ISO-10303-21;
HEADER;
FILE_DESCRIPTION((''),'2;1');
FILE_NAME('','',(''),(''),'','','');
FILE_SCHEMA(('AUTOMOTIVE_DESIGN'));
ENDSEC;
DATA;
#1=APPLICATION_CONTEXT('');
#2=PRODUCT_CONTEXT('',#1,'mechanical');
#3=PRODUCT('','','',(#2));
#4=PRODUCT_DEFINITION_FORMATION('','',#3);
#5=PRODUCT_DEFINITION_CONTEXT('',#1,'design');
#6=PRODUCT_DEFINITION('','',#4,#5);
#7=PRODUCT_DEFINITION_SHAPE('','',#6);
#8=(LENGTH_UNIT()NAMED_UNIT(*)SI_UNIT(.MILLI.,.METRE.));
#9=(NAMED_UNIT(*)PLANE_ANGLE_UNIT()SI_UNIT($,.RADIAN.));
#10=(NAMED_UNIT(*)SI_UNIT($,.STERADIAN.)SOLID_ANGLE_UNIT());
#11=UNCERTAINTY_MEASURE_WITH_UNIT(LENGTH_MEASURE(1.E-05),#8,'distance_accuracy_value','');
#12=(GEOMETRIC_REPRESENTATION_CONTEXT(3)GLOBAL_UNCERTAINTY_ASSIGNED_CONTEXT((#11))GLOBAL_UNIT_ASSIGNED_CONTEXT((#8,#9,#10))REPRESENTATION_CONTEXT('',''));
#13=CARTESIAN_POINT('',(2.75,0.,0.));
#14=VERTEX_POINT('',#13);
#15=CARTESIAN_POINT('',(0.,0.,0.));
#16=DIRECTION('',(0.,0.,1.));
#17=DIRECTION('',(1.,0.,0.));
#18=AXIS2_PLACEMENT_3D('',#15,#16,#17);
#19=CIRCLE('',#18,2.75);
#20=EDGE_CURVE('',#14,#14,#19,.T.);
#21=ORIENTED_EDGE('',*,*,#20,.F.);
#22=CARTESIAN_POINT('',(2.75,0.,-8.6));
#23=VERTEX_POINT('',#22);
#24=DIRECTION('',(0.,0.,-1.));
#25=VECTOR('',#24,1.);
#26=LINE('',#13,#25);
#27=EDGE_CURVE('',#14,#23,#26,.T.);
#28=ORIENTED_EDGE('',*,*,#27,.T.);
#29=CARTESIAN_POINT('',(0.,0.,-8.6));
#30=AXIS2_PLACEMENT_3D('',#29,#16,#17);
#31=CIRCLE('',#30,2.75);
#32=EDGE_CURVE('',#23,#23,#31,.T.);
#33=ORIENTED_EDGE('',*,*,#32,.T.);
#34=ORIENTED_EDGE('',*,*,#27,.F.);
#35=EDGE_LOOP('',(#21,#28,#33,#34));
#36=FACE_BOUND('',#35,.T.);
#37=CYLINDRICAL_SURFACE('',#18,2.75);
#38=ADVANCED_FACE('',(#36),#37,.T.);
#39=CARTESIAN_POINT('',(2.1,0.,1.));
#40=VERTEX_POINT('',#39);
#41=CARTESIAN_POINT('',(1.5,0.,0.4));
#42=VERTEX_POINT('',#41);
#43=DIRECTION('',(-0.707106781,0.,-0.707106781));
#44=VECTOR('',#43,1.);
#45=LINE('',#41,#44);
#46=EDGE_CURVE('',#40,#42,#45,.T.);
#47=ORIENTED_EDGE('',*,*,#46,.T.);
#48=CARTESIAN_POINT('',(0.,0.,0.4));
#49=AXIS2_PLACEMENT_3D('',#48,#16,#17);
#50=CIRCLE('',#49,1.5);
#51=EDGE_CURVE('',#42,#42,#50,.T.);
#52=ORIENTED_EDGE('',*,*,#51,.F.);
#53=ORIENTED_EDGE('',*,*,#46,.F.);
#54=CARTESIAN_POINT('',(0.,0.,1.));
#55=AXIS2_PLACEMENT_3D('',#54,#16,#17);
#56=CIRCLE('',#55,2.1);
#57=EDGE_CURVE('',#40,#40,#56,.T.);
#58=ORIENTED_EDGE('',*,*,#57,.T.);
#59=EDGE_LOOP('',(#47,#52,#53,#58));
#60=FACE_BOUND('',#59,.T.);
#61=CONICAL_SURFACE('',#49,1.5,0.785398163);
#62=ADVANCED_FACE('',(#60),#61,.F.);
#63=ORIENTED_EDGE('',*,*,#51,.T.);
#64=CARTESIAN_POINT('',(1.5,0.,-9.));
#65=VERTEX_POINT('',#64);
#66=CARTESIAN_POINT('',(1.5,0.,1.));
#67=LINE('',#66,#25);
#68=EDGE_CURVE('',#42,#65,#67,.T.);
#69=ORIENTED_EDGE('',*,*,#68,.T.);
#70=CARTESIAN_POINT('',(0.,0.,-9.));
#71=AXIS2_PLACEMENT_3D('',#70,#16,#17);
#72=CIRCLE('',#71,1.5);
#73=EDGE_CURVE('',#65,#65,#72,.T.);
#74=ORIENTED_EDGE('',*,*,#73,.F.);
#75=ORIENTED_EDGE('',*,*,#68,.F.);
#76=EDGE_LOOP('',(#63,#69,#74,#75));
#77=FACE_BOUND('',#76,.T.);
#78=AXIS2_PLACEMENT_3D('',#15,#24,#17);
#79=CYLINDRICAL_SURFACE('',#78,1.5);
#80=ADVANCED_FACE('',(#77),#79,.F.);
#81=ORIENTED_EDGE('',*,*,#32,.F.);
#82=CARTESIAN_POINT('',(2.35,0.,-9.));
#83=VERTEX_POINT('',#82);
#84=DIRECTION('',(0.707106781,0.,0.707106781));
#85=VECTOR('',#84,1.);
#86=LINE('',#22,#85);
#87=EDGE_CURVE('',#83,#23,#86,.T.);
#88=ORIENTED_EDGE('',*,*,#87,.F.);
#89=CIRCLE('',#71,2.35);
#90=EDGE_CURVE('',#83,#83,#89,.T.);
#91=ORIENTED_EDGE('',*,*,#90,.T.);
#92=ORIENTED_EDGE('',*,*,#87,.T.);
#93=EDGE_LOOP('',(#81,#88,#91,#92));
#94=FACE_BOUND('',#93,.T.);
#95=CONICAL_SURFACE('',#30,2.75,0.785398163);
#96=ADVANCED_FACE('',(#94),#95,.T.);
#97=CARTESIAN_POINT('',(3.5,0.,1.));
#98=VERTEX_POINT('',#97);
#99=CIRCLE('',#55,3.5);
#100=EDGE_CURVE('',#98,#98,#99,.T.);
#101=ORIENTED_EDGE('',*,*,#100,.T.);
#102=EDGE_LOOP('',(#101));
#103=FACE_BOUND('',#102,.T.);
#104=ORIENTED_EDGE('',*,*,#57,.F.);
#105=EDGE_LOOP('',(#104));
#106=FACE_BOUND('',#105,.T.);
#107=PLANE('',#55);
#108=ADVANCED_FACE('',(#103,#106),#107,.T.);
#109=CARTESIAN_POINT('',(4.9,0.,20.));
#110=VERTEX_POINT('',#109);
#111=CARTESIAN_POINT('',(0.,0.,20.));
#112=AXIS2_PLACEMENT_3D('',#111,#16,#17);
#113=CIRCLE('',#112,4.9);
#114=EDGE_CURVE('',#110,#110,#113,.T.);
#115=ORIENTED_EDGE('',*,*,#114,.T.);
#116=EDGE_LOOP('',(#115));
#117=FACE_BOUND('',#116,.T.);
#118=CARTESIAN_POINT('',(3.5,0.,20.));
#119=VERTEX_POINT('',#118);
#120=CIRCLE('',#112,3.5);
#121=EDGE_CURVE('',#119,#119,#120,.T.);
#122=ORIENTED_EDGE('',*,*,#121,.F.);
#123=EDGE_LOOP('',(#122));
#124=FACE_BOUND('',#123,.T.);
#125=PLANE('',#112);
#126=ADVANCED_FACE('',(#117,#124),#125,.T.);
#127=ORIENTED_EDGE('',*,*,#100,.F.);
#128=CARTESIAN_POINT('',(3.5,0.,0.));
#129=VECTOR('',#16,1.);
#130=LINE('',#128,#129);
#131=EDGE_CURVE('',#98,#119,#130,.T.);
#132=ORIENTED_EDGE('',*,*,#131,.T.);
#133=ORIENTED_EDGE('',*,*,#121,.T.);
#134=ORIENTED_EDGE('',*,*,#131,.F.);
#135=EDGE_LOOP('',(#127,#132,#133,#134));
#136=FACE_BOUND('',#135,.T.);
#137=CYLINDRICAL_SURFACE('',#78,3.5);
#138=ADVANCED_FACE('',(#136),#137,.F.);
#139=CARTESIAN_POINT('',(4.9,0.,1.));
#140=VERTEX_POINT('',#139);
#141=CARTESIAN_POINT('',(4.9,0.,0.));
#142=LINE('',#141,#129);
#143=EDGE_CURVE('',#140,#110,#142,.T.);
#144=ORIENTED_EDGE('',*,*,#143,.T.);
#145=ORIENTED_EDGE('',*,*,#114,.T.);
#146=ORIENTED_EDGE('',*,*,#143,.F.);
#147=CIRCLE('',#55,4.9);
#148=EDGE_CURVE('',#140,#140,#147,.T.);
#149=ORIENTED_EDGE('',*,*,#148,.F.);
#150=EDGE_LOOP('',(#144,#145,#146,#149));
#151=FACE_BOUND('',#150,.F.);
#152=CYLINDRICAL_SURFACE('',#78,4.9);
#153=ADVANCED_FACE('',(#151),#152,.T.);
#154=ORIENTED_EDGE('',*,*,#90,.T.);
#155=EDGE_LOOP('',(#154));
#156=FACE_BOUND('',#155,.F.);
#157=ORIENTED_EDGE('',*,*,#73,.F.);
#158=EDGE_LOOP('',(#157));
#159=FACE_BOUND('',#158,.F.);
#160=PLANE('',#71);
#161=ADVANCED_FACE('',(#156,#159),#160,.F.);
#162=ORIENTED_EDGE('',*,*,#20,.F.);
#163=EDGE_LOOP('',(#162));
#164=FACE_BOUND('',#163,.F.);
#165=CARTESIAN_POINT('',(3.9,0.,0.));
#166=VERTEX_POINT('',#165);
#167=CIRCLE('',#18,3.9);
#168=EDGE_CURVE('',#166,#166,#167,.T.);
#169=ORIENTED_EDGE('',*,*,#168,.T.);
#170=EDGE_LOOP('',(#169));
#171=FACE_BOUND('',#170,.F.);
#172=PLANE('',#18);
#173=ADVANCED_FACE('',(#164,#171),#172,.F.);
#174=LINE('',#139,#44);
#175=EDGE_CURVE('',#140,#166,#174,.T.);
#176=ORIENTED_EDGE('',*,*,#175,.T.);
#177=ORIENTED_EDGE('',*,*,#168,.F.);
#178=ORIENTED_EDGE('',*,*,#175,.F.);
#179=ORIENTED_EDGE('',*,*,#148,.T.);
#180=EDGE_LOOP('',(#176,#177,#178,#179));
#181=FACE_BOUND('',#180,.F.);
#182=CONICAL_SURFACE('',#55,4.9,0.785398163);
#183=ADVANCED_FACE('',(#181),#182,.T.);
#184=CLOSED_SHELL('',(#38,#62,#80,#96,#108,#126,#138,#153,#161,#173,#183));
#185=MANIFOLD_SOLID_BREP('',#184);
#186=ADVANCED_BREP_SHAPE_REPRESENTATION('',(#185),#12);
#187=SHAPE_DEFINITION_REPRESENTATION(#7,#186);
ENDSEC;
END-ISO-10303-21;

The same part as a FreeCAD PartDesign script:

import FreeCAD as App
import Part
import Sketcher

V = App.Vector
Q = App.Units.Quantity


def edges_at(feature, points):
    """Names of the edges that pass closest to the given points."""
    edges = feature.Shape.Edges
    near = lambda p: min(range(len(edges)), key=lambda i: edges[i].distToShape(Part.Vertex(*p))[0])
    return sorted({f"Edge{near(p) + 1}" for p in points})

doc = App.newDocument("Part")
body = doc.addObject("PartDesign::Body", "Body")

# Sketch on XY plane
sketch1 = body.newObject("Sketcher::SketchObject", "Sketch")
sketch1.AttachmentSupport = (doc.getObject("XY_Plane"), [""])
sketch1.MapMode = "FlatFace"
sketch1.addGeometry([
    Part.Circle(V(0, 0, 0), V(0, 0, 1), 2.8),
    Part.Circle(V(0, 0, 0), V(0, 0, 1), 1.5),
], False)
sketch1.addConstraint([
    Sketcher.Constraint("Coincident", 0, 3, -1, 1),
    Sketcher.Constraint("Coincident", 1, 3, -1, 1),
    Sketcher.Constraint("Diameter", 1, Q("3 mm")),
    Sketcher.Constraint("Diameter", 0, Q("5.5 mm")),
])
pad1 = body.newObject("PartDesign::Pad", "Pad")
pad1.Profile = sketch1
pad1.Length = 9
pad1.Reversed = True

# Sketch on XY plane
sketch2 = body.newObject("Sketcher::SketchObject", "Sketch001")
sketch2.AttachmentSupport = (doc.getObject("XY_Plane"), [""])
sketch2.MapMode = "FlatFace"
sketch2.addGeometry([
    Part.Circle(V(0, 0, 0), V(0, 0, 1), 3.5),
    Part.Circle(V(0, 0, 0), V(0, 0, 1), 1.5),
], False)
sketch2.addConstraint([
    Sketcher.Constraint("Coincident", 0, 3, -1, 1),
    Sketcher.Constraint("Coincident", 1, 3, -1, 1),
    Sketcher.Constraint("Diameter", 0, Q("7 mm")),
    Sketcher.Constraint("Diameter", 1, Q("3 mm")),
])
pad2 = body.newObject("PartDesign::Pad", "Pad001")
pad2.Profile = sketch2
pad2.Length = 1

# Sketch on XY plane
sketch3 = body.newObject("Sketcher::SketchObject", "Sketch002")
sketch3.AttachmentSupport = (doc.getObject("XY_Plane"), [""])
sketch3.MapMode = "FlatFace"
sketch3.addGeometry([
    Part.Circle(V(0, 0, 0), V(0, 0, 1), 4.9),
    Part.Circle(V(0, 0, 0), V(0, 0, 1), 3.5),
], False)
sketch3.addConstraint([
    Sketcher.Constraint("Coincident", 0, 3, -1, 1),
    Sketcher.Constraint("Coincident", 1, 3, -1, 1),
    Sketcher.Constraint("Diameter", 1, Q("7 mm")),
    Sketcher.Constraint("Diameter", 0, Q("9.8 mm")),
])
pad3 = body.newObject("PartDesign::Pad", "Pad002")
pad3.Profile = sketch3
pad3.Length = 20
doc.recompute()

chamfer = body.newObject("PartDesign::Chamfer", "Chamfer")
chamfer.Base = (pad3, edges_at(pad3, [(-4.9, 0, 0)]))
chamfer.Size = 1
doc.recompute()

chamfer2 = body.newObject("PartDesign::Chamfer", "Chamfer001")
chamfer2.Base = (chamfer, edges_at(chamfer, [(-1.5, 0, 1)]))
chamfer2.Size = 0.6
doc.recompute()

chamfer3 = body.newObject("PartDesign::Chamfer", "Chamfer002")
chamfer3.Base = (chamfer2, edges_at(chamfer2, [(-2.75, 0, -9)]))
chamfer3.Size = 0.4

doc.recompute()
